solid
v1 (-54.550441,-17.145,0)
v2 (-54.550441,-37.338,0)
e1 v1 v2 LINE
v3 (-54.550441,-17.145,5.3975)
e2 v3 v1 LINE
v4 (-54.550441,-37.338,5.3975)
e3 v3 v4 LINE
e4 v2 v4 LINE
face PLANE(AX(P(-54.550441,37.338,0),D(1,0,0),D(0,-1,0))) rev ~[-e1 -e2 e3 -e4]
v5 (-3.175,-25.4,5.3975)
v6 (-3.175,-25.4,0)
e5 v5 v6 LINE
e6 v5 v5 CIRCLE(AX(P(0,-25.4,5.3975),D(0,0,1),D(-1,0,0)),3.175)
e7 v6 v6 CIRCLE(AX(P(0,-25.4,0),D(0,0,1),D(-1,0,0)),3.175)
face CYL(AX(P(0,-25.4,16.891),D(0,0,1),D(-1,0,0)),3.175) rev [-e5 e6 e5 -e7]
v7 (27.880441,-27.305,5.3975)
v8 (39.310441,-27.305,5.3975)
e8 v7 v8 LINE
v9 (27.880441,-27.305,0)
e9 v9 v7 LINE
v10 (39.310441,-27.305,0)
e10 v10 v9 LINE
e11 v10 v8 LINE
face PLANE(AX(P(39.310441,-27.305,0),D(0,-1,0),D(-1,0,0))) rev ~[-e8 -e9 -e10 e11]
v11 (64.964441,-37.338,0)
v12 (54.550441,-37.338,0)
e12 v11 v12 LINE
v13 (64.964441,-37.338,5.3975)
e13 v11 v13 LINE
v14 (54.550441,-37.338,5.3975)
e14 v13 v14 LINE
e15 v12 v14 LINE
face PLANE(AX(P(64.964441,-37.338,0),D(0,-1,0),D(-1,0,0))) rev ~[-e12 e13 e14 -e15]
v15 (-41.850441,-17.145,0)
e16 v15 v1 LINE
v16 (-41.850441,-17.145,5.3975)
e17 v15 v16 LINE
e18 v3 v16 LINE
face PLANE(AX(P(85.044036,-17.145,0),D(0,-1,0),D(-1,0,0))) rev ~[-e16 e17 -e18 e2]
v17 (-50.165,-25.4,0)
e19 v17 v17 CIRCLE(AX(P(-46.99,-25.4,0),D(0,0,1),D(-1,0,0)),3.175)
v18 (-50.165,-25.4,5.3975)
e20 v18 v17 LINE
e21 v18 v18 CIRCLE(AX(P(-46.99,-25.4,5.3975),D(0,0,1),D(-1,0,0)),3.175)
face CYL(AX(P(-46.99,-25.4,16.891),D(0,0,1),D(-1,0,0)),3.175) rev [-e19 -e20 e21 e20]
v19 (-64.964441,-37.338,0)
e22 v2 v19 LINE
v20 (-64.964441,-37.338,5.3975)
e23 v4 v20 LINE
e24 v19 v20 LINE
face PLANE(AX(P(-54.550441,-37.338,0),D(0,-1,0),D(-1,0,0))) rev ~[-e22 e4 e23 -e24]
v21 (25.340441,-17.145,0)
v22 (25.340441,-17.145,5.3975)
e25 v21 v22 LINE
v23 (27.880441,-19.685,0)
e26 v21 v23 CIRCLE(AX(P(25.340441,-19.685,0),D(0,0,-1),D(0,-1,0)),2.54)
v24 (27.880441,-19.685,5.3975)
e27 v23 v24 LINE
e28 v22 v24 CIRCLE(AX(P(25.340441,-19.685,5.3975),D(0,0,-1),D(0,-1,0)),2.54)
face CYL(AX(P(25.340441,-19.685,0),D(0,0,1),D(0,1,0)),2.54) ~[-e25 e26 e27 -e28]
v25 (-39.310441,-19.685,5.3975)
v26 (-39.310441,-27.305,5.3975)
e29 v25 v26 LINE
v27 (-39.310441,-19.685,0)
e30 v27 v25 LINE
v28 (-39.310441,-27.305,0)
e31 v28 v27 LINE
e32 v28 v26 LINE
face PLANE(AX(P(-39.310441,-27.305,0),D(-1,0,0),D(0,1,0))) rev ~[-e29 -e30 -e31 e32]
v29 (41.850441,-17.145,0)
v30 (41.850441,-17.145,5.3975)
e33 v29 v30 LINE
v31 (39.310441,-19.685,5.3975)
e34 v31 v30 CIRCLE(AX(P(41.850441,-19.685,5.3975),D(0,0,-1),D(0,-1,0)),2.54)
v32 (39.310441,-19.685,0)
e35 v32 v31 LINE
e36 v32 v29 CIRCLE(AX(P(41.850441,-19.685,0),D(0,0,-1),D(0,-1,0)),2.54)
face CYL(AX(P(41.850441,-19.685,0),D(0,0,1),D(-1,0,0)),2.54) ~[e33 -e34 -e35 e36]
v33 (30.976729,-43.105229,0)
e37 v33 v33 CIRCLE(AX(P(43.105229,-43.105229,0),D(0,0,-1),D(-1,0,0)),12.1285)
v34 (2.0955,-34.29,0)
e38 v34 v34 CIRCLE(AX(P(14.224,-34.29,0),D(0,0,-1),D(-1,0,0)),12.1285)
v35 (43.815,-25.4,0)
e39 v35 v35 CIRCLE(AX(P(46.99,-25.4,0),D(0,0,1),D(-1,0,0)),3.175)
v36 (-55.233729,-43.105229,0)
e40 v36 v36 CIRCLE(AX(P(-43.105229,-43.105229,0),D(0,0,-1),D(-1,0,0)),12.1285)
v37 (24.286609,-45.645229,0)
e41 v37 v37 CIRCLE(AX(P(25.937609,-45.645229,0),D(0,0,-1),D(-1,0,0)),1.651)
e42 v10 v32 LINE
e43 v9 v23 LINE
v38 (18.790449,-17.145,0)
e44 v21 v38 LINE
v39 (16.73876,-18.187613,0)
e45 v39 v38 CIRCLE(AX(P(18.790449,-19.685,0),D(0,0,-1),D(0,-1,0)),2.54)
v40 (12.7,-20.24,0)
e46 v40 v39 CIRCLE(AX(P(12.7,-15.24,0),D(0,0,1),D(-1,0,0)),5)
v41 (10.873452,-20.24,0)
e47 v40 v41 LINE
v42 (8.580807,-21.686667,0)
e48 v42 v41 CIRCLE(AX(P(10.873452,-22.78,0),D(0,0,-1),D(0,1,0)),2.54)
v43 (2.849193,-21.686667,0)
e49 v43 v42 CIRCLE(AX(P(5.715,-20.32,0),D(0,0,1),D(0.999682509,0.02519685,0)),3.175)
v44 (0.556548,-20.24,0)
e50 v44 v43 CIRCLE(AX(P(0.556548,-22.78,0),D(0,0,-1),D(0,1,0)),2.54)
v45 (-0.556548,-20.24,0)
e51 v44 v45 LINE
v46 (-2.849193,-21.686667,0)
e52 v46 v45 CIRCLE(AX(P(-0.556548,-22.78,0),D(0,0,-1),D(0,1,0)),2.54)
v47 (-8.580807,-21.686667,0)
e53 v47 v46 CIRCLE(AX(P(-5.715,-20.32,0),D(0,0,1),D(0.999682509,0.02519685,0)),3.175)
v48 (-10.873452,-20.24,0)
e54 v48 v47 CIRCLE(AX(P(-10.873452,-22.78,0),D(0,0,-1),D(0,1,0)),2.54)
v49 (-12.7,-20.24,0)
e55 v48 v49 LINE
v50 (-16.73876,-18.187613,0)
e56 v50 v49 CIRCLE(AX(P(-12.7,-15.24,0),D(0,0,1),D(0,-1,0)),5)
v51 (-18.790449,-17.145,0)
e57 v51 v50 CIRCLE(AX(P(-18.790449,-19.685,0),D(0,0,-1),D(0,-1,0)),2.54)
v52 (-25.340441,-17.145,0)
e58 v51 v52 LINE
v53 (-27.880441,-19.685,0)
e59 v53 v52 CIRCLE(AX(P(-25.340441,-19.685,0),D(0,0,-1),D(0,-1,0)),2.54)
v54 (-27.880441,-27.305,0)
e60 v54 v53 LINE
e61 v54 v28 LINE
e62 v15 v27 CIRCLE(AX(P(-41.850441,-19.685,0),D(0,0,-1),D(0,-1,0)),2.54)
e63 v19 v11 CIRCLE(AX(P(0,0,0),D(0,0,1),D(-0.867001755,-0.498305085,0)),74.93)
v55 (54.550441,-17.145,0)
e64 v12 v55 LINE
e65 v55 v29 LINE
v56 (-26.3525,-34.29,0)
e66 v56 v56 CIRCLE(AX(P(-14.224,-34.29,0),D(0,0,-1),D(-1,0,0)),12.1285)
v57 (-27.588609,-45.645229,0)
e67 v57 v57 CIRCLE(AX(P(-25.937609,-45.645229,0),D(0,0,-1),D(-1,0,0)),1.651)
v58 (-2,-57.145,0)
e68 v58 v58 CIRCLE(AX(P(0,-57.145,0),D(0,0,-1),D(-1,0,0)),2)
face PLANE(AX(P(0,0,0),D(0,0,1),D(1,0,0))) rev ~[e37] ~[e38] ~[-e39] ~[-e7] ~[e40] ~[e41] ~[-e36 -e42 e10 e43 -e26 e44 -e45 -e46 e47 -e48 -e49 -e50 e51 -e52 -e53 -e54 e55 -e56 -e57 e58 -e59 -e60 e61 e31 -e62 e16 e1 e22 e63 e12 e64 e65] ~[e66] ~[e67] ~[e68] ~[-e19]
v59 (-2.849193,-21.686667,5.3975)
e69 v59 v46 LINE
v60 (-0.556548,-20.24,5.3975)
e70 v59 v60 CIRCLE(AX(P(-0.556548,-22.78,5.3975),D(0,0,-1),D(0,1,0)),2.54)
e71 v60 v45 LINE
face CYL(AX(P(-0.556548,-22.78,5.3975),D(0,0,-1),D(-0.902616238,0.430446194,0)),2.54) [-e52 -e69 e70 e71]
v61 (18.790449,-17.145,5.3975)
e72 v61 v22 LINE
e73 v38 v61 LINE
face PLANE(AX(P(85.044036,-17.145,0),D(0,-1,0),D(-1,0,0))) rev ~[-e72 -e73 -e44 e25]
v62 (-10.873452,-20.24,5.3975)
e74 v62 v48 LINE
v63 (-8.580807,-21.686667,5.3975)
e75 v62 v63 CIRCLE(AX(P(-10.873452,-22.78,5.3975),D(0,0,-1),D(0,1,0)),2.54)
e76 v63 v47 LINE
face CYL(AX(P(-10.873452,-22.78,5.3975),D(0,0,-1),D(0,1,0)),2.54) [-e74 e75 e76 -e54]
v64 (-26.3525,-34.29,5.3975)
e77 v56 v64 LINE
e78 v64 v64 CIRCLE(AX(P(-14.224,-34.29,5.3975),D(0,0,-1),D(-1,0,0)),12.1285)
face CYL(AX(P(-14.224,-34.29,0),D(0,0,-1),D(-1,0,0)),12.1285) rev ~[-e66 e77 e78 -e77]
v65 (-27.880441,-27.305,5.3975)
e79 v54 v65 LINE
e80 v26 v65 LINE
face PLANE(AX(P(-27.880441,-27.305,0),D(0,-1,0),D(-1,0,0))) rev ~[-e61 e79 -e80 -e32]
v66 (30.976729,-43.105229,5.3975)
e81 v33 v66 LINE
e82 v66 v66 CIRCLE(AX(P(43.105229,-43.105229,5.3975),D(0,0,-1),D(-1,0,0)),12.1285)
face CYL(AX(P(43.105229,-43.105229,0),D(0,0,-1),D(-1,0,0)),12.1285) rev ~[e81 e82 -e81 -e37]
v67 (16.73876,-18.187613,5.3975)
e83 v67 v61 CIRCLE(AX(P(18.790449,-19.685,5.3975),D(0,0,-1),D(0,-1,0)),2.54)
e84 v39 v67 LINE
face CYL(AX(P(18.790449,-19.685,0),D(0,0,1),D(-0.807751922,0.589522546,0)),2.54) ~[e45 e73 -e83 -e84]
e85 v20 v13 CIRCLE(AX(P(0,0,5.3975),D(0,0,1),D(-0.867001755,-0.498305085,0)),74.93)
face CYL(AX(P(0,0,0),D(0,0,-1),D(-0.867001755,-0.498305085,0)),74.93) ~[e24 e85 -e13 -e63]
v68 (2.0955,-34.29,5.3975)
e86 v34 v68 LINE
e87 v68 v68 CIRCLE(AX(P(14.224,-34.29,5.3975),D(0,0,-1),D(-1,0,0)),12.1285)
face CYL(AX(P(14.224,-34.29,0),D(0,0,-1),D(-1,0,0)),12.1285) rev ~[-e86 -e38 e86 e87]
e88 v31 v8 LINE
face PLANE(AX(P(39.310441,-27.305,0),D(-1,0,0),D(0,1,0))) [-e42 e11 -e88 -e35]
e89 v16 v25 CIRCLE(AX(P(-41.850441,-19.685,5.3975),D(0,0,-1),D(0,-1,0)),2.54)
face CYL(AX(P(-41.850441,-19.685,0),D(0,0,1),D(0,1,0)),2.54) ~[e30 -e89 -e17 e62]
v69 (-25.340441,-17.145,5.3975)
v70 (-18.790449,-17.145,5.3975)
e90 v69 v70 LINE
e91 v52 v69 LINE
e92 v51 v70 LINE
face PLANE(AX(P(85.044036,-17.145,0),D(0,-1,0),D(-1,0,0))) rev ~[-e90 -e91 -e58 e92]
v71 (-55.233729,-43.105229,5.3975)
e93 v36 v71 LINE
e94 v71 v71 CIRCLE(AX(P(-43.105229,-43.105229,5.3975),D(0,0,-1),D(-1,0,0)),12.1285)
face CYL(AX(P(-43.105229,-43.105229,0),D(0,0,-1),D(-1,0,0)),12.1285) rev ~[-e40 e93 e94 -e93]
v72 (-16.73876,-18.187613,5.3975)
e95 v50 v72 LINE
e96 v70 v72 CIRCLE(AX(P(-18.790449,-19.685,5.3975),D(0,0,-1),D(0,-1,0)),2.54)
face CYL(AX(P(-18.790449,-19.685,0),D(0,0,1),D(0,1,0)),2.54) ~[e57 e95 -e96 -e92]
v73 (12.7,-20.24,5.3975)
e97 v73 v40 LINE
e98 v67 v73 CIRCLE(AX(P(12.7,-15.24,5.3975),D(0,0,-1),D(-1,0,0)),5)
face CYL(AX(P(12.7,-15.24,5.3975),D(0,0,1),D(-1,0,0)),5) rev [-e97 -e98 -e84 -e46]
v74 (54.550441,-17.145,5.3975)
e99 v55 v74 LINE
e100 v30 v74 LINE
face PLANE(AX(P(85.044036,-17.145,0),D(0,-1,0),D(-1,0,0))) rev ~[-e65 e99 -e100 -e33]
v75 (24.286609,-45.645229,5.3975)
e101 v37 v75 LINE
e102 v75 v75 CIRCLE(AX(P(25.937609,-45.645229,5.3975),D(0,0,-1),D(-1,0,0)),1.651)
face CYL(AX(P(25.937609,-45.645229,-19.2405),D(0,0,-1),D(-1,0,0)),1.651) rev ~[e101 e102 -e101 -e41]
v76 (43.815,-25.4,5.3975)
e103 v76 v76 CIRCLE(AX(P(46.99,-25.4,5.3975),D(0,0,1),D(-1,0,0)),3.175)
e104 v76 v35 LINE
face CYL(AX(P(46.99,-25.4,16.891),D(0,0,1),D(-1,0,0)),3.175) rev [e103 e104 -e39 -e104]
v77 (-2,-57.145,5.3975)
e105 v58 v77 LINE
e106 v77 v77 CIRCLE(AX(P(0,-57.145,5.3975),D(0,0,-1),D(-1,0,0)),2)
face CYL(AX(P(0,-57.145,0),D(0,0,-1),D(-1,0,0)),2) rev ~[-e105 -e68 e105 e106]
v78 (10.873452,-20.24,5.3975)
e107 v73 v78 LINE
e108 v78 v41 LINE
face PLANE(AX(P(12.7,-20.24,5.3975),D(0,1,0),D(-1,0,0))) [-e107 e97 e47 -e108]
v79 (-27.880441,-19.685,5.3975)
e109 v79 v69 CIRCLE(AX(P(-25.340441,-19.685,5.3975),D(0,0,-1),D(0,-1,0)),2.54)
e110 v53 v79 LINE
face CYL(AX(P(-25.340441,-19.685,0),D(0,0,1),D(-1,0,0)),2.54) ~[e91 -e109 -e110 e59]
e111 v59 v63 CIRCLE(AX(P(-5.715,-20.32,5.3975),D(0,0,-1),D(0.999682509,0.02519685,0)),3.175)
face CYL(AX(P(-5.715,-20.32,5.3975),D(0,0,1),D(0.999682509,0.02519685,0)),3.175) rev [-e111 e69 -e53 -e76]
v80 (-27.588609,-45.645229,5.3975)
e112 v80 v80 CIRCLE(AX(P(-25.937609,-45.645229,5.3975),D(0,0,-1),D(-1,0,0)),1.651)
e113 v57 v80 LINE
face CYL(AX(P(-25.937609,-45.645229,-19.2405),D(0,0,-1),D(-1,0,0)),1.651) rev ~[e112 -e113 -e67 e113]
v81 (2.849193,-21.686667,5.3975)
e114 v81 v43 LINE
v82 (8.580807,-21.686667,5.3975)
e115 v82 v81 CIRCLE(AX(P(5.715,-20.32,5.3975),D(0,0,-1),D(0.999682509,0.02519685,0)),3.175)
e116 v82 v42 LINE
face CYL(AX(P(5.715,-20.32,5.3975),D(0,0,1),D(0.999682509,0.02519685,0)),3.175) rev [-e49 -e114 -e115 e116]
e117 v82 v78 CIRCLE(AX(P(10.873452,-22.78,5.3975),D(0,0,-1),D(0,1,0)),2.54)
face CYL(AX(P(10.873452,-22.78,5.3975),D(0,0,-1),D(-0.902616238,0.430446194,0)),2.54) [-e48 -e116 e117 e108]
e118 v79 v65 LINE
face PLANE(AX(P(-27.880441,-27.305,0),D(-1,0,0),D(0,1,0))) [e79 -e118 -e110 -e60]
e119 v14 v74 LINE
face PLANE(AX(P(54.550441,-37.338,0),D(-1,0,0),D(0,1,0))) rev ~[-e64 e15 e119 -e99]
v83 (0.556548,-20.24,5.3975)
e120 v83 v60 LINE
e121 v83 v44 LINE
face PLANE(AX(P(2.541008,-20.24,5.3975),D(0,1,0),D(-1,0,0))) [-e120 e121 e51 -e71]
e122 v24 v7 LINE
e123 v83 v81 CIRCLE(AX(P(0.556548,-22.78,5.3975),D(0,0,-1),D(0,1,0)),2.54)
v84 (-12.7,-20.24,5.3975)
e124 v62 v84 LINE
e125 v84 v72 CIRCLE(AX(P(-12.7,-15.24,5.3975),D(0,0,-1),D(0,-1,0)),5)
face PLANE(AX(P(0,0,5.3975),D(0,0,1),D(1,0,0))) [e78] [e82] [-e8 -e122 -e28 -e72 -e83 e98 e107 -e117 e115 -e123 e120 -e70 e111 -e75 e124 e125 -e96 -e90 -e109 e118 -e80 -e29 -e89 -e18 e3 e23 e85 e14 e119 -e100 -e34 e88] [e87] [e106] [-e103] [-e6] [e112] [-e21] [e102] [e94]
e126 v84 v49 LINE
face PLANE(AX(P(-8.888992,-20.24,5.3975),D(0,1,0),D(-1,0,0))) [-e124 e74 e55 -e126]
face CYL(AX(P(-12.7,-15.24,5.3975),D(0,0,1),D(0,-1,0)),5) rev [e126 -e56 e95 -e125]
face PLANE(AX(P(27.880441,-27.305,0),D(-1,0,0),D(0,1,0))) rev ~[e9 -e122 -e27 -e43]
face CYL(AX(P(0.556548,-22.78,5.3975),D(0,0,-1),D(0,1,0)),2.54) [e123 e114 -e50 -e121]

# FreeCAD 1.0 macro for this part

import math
import FreeCAD as App
import Part
import Sketcher
from FreeCAD import Vector
Q = App.Units.Quantity


def edges_at(feature, points):
    """Names of the edges that pass closest to the given points."""
    edges = feature.Shape.Edges
    near = lambda p: min(range(len(edges)), key=lambda i: edges[i].distToShape(Part.Vertex(*p))[0])
    return sorted({f"Edge{near(p) + 1}" for p in points})

doc = App.newDocument("Part")
params = doc.addObject("Spreadsheet::Sheet", "Params")
for row, (alias, value) in enumerate([
    ("sketch1_diameter", "0.13 in"),
    ("sketch1_radius", "2.95 in"),
    ("sketch1_width", "0.41 in"),
    ("sketch1_height", "2.94 in"),
    ("pad1_length", "0.2125 in"),
    ("sketch2_diameter", "0.09 in"),
    ("sketch3_diameter", "0.955 in"),
    ("pad2_length", "0.2125 in"),
    ("pocket4_length", "0.92 in"),
    ("sketch7_height", "0.4 in"),
    ("sketch7_width", "0.45 in"),
    ("sketch8_diameter", "0.13 in"),
    ("pocket6_length", "3.85 in"),
    ("sketch9_diameter", "0.25 in"),
    ("sketch10_radius", "0.125 in"),
    ("pocket8_length", "10 mm"),
    ("fillet_radius", "0.1 in"),
], start=1):
    params.set(f"A{row}", alias)
    params.set(f"B{row}", "=" + value)
    params.setAlias(f"B{row}", alias)

body = doc.addObject("PartDesign::Body", "Body")

# Sketch on XY plane
sketch1 = doc.addObject("Sketcher::SketchObject", "Sketch")
body.addObject(sketch1)
sketch1.AttachmentSupport = (doc.XY_Plane, [""])
sketch1.MapMode = "FlatFace"
sketch1.addGeometry(Part.LineSegment(Vector(-65, 37.3, 0), Vector(-54.6, 37.3, 0)), False)
sketch1.addGeometry(Part.LineSegment(Vector(-54.6, 37.3, 0), Vector(-54.6, -37.3, 0)), False)
sketch1.addGeometry(Part.LineSegment(Vector(-54.6, -37.3, 0), Vector(-65, -37.3, 0)), False)
sketch1.addGeometry(Part.ArcOfCircle(Part.Circle(Vector(0, 0, 0), Vector(0, 0, 1), 74.9), math.radians(-150), math.radians(-30)), False)
sketch1.addGeometry(Part.LineSegment(Vector(65, -37.3, 0), Vector(54.6, -37.3, 0)), False)
sketch1.addGeometry(Part.LineSegment(Vector(54.6, -37.3, 0), Vector(54.6, 37.3, 0)), False)
sketch1.addGeometry(Part.LineSegment(Vector(54.6, 37.3, 0), Vector(65, 37.3, 0)), False)
sketch1.addGeometry(Part.ArcOfCircle(Part.Circle(Vector(0, 0, 0), Vector(0, 0, 1), 74.9), math.radians(30), math.radians(150)), False)
sketch1.addGeometry(Part.Circle(Vector(-46.5, -11, 0), Vector(0, 0, 1), 1.7), False)
sketch1.addGeometry(Part.Circle(Vector(-21.1, -10.8, 0), Vector(0, 0, 1), 1.7), False)
sketch1.addGeometry(Part.Circle(Vector(21.1, -10.8, 0), Vector(0, 0, 1), 1.7), False)
sketch1.addGeometry(Part.Circle(Vector(46.5, -11, 0), Vector(0, 0, 1), 1.7), False)
sketch1.addGeometry(Part.Circle(Vector(-46.5, 11, 0), Vector(0, 0, 1), 1.7), False)
sketch1.addGeometry(Part.Circle(Vector(-21.1, 10.8, 0), Vector(0, 0, 1), 1.7), False)
sketch1.addGeometry(Part.Circle(Vector(21.1, 10.8, 0), Vector(0, 0, 1), 1.7), False)
sketch1.addGeometry(Part.Circle(Vector(46.5, 11, 0), Vector(0, 0, 1), 1.7), False)
sketch1.addConstraint(Sketcher.Constraint("Coincident", 0, 2, 1, 1))
sketch1.addConstraint(Sketcher.Constraint("Coincident", 1, 2, 2, 1))
sketch1.addConstraint(Sketcher.Constraint("Coincident", 2, 2, 3, 1))
sketch1.addConstraint(Sketcher.Constraint("Coincident", 3, 2, 4, 1))
sketch1.addConstraint(Sketcher.Constraint("Coincident", 4, 2, 5, 1))
sketch1.addConstraint(Sketcher.Constraint("Coincident", 5, 2, 6, 1))
sketch1.addConstraint(Sketcher.Constraint("Coincident", 6, 2, 7, 1))
sketch1.addConstraint(Sketcher.Constraint("Coincident", 7, 2, 0, 1))
sketch1.addConstraint(Sketcher.Constraint("Horizontal", 0))
sketch1.addConstraint(Sketcher.Constraint("Vertical", 1))
sketch1.addConstraint(Sketcher.Constraint("Horizontal", 2))
sketch1.addConstraint(Sketcher.Constraint("Horizontal", 4))
sketch1.addConstraint(Sketcher.Constraint("Vertical", 5))
sketch1.addConstraint(Sketcher.Constraint("Horizontal", 6))
sketch1.addConstraint(Sketcher.Constraint("Coincident", 3, 3, -1, 1))
sketch1.addConstraint(Sketcher.Constraint("Coincident", 7, 3, -1, 1))
sketch1.addConstraint(Sketcher.Constraint("Equal", 3, 7))
sketch1.addConstraint(Sketcher.Constraint("Equal", 8, 9))
sketch1.addConstraint(Sketcher.Constraint("Equal", 9, 10))
sketch1.addConstraint(Sketcher.Constraint("Equal", 10, 11))
sketch1.addConstraint(Sketcher.Constraint("Equal", 11, 12))
sketch1.addConstraint(Sketcher.Constraint("Equal", 12, 13))
sketch1.addConstraint(Sketcher.Constraint("Equal", 13, 14))
sketch1.addConstraint(Sketcher.Constraint("Equal", 14, 15))
sketch1.addConstraint(Sketcher.Constraint("Symmetric", 11, 3, 12, 3, -1, 1))
sketch1.addConstraint(Sketcher.Constraint("Symmetric", 10, 3, 13, 3, -1, 1))
sketch1.addConstraint(Sketcher.Constraint("Symmetric", 9, 3, 14, 3, -1, 1))
sketch1.addConstraint(Sketcher.Constraint("Symmetric", 8, 3, 15, 3, -1, 1))
sketch1.addConstraint(Sketcher.Constraint("Symmetric", 0, 2, 4, 2, -1, 1))
sketch1.addConstraint(Sketcher.Constraint("Symmetric", 9, 3, 10, 3, -2))
sketch1.addConstraint(Sketcher.Constraint("Symmetric", 8, 3, 11, 3, -2))
sketch1.addConstraint(Sketcher.Constraint("Horizontal", 2, 2, 3, 2))
sketch1.addConstraint(Sketcher.Constraint("Horizontal", 0, 2, 5, 2))
sketch1.addConstraint(Sketcher.Constraint("Diameter", 8, Q("0.13 in")))
sketch1.addConstraint(Sketcher.Constraint("Radius", 3, Q("2.95 in")))
sketch1.addConstraint(Sketcher.Constraint("DistanceX", 0, 1, 0, 2, Q("0.41 in")))
sketch1.addConstraint(Sketcher.Constraint("DistanceY", 1, 2, 1, 1, Q("2.94 in")))
sketch1.addConstraint(Sketcher.Constraint("DistanceX", 8, 3, -1, 1, Q("1.83 in")))
sketch1.addConstraint(Sketcher.Constraint("DistanceY", 8, 3, 9, 3, Q("0.01 in")))
sketch1.addConstraint(Sketcher.Constraint("DistanceY", 8, 3, 12, 3, Q("0.87 in")))
sketch1.addConstraint(Sketcher.Constraint("DistanceX", 9, 3, 10, 3, Q("1.6601 in")))
sketch1.setExpression("Constraints[33]", "Params.sketch1_diameter")
sketch1.setExpression("Constraints[34]", "Params.sketch1_radius")
sketch1.setExpression("Constraints[35]", "Params.sketch1_width")
sketch1.setExpression("Constraints[36]", "Params.sketch1_height")
pad1 = doc.addObject("PartDesign::Pad", "Pad")
body.addObject(pad1)
pad1.Profile = sketch1
pad1.setExpression("Length", "Params.pad1_length")

# Sketch on XY plane
sketch2 = doc.addObject("Sketcher::SketchObject", "Sketch001")
body.addObject(sketch2)
sketch2.AttachmentSupport = (doc.XY_Plane, [""])
sketch2.MapMode = "FlatFace"
sketch2.AttachmentOffset = App.Placement(Vector(0, 0, 0.2125 * 25.4), App.Rotation())
sketch2.addGeometry(Part.Circle(Vector(-6.7, 62.2, 0), Vector(0, 0, 1), 1.1), False)
sketch2.addGeometry(Part.Circle(Vector(6.7, 62.2, 0), Vector(0, 0, 1), 1.1), False)
sketch2.addConstraint(Sketcher.Constraint("Equal", 0, 1))
sketch2.addConstraint(Sketcher.Constraint("Symmetric", 0, 3, 1, 3, -2))
sketch2.addConstraint(Sketcher.Constraint("Diameter", 0, Q("0.09 in")))
sketch2.addConstraint(Sketcher.Constraint("DistanceY", -1, 1, 0, 3, Q("2.45 in")))
sketch2.addConstraint(Sketcher.Constraint("DistanceX", 0, 3, 1, 3, Q("0.53 in")))
sketch2.setExpression("Constraints[2]", "Params.sketch2_diameter")
pocket1 = doc.addObject("PartDesign::Pocket", "Pocket")
body.addObject(pocket1)
pocket1.Profile = sketch2
pocket1.Type = "ThroughAll"

# Sketch on XY plane
sketch3 = doc.addObject("Sketcher::SketchObject", "Sketch002")
body.addObject(sketch3)
sketch3.AttachmentSupport = (doc.XY_Plane, [""])
sketch3.MapMode = "FlatFace"
sketch3.addGeometry(Part.Circle(Vector(43, -43, 0), Vector(0, 0, 1), 12), False)
sketch3.addGeometry(Part.Circle(Vector(-14, -34, 0), Vector(0, 0, 1), 12), False)
sketch3.addGeometry(Part.Circle(Vector(-14, 34, 0), Vector(0, 0, 1), 12), False)
sketch3.addGeometry(Part.Circle(Vector(43, 43, 0), Vector(0, 0, 1), 12), False)
sketch3.addGeometry(Part.Circle(Vector(-43, 43, 0), Vector(0, 0, 1), 12), False)
sketch3.addGeometry(Part.Circle(Vector(14, 34, 0), Vector(0, 0, 1), 12), False)
sketch3.addGeometry(Part.Circle(Vector(14, -34, 0), Vector(0, 0, 1), 12), False)
sketch3.addGeometry(Part.Circle(Vector(-43, -43, 0), Vector(0, 0, 1), 12), False)
sketch3.addConstraint(Sketcher.Constraint("Equal", 0, 1))
sketch3.addConstraint(Sketcher.Constraint("Equal", 1, 2))
sketch3.addConstraint(Sketcher.Constraint("Equal", 2, 3))
sketch3.addConstraint(Sketcher.Constraint("Equal", 3, 4))
sketch3.addConstraint(Sketcher.Constraint("Equal", 4, 5))
sketch3.addConstraint(Sketcher.Constraint("Equal", 5, 6))
sketch3.addConstraint(Sketcher.Constraint("Equal", 6, 7))
sketch3.addConstraint(Sketcher.Constraint("Symmetric", 0, 3, 4, 3, -1, 1))
sketch3.addConstraint(Sketcher.Constraint("Symmetric", 1, 3, 5, 3, -1, 1))
sketch3.addConstraint(Sketcher.Constraint("Symmetric", 2, 3, 6, 3, -1, 1))
sketch3.addConstraint(Sketcher.Constraint("Symmetric", 3, 3, 7, 3, -1, 1))
sketch3.addConstraint(Sketcher.Constraint("Symmetric", 3, 3, 4, 3, -2))
sketch3.addConstraint(Sketcher.Constraint("Symmetric", 2, 3, 5, 3, -2))
sketch3.addConstraint(Sketcher.Constraint("Diameter", 0, Q("0.955 in")))
sketch3.addConstraint(Sketcher.Constraint("DistanceY", 1, 3, 2, 3, Q("2.7 in")))
sketch3.addConstraint(Sketcher.Constraint("DistanceX", 1, 3, -1, 1, Q("0.56 in")))
sketch3.addConstraint(Sketcher.Constraint("DistanceX", -1, 1, 0, 3, Q("43.105229 mm")))
sketch3.addConstraint(Sketcher.Constraint("DistanceY", 0, 3, -1, 1, Q("43.105229 mm")))
sketch3.setExpression("Constraints[13]", "Params.sketch3_diameter")
pocket2 = doc.addObject("PartDesign::Pocket", "Pocket001")
body.addObject(pocket2)
pocket2.Profile = sketch3
pocket2.Type = "ThroughAll"
pocket2.Reversed = True

# Sketch on XY plane
sketch4 = doc.addObject("Sketcher::SketchObject", "Sketch003")
body.addObject(sketch4)
sketch4.AttachmentSupport = (doc.XY_Plane, [""])
sketch4.MapMode = "FlatFace"
sketch4.addGeometry(Part.LineSegment(Vector(16, 68, 0), Vector(16, 56, 0)), False)
sketch4.addGeometry(Part.LineSegment(Vector(16, 56, 0), Vector(-13, 56, 0)), False)
sketch4.addGeometry(Part.LineSegment(Vector(-13, 56, 0), Vector(-13, 68, 0)), False)
sketch4.addGeometry(Part.LineSegment(Vector(-13, 68, 0), Vector(16, 68, 0)), False)
sketch4.addConstraint(Sketcher.Constraint("Coincident", 0, 2, 1, 1))
sketch4.addConstraint(Sketcher.Constraint("Coincident", 1, 2, 2, 1))
sketch4.addConstraint(Sketcher.Constraint("Coincident", 2, 2, 3, 1))
sketch4.addConstraint(Sketcher.Constraint("Coincident", 3, 2, 0, 1))
sketch4.addConstraint(Sketcher.Constraint("Vertical", 0))
sketch4.addConstraint(Sketcher.Constraint("Horizontal", 1))
sketch4.addConstraint(Sketcher.Constraint("Vertical", 2))
sketch4.addConstraint(Sketcher.Constraint("Horizontal", 3))
sketch4.addConstraint(Sketcher.Constraint("DistanceX", 1, 2, 1, 1, Q("28.562713 mm")))
sketch4.addConstraint(Sketcher.Constraint("DistanceY", 0, 2, 0, 1, Q("11.677504 mm")))
sketch4.addConstraint(Sketcher.Constraint("DistanceY", -1, 1, 0, 2, Q("56.313788 mm")))
sketch4.addConstraint(Sketcher.Constraint("DistanceX", -1, 1, 0, 2, Q("15.770167 mm")))
pad2 = doc.addObject("PartDesign::Pad", "Pad001")
body.addObject(pad2)
pad2.Profile = sketch4
pad2.setExpression("Length", "Params.pad2_length")

# Sketch on XY plane
sketch5 = doc.addObject("Sketcher::SketchObject", "Sketch004")
body.addObject(sketch5)
sketch5.AttachmentSupport = (doc.XY_Plane, [""])
sketch5.MapMode = "FlatFace"
sketch5.addGeometry(Part.LineSegment(Vector(85, 113, 0), Vector(85, -17, 0)), False)
sketch5.addGeometry(Part.LineSegment(Vector(85, -17, 0), Vector(-132, -17, 0)), False)
sketch5.addGeometry(Part.LineSegment(Vector(-132, -17, 0), Vector(-132, 113, 0)), False)
sketch5.addGeometry(Part.LineSegment(Vector(-132, 113, 0), Vector(85, 113, 0)), False)
sketch5.addConstraint(Sketcher.Constraint("Coincident", 0, 2, 1, 1))
sketch5.addConstraint(Sketcher.Constraint("Coincident", 1, 2, 2, 1))
sketch5.addConstraint(Sketcher.Constraint("Coincident", 2, 2, 3, 1))
sketch5.addConstraint(Sketcher.Constraint("Coincident", 3, 2, 0, 1))
sketch5.addConstraint(Sketcher.Constraint("Vertical", 0))
sketch5.addConstraint(Sketcher.Constraint("Horizontal", 1))
sketch5.addConstraint(Sketcher.Constraint("Vertical", 2))
sketch5.addConstraint(Sketcher.Constraint("Horizontal", 3))
sketch5.addConstraint(Sketcher.Constraint("DistanceY", 0, 2, -1, 1, Q("0.675 in")))
sketch5.addConstraint(Sketcher.Constraint("DistanceX", 1, 2, 1, 1, Q("216.721449 mm")))
sketch5.addConstraint(Sketcher.Constraint("DistanceY", 0, 2, 0, 1, Q("130.569221 mm")))
sketch5.addConstraint(Sketcher.Constraint("DistanceX", -1, 1, 0, 2, Q("85.044036 mm")))
pocket3 = doc.addObject("PartDesign::Pocket", "Pocket002")
body.addObject(pocket3)
pocket3.Profile = sketch5
pocket3.Type = "ThroughAll"
pocket3.Reversed = True

# Sketch on XY plane
sketch6 = doc.addObject("Sketcher::SketchObject", "Sketch005")
body.addObject(sketch6)
sketch6.AttachmentSupport = (doc.XY_Plane, [""])
sketch6.MapMode = "FlatFace"
sketch6.addGeometry(Part.Circle(Vector(0, -57.1, 0), Vector(0, 0, 1), 2), False)
sketch6.addConstraint(Sketcher.Constraint("PointOnObject", 0, 3, -2))
sketch6.addConstraint(Sketcher.Constraint("Diameter", 0, Q("4 mm")))
sketch6.addConstraint(Sketcher.Constraint("DistanceY", 0, 3, -1, 1, Q("57.145 mm")))
pocket4 = doc.addObject("PartDesign::Pocket", "Pocket003")
body.addObject(pocket4)
pocket4.Profile = sketch6
pocket4.setExpression("Length", "Params.pocket4_length")
pocket4.Reversed = True

# Sketch on XY plane
sketch7 = doc.addObject("Sketcher::SketchObject", "Sketch006")
body.addObject(sketch7)
sketch7.AttachmentSupport = (doc.XY_Plane, [""])
sketch7.MapMode = "FlatFace"
sketch7.addGeometry(Part.LineSegment(Vector(39, -17, 0), Vector(39, -27, 0)), False)
sketch7.addGeometry(Part.LineSegment(Vector(39, -27, 0), Vector(28, -27, 0)), False)
sketch7.addGeometry(Part.LineSegment(Vector(28, -27, 0), Vector(28, -17, 0)), False)
sketch7.addGeometry(Part.LineSegment(Vector(28, -17, 0), Vector(39, -17, 0)), False)
sketch7.addGeometry(Part.LineSegment(Vector(-28, -17, 0), Vector(-28, -27, 0)), False)
sketch7.addGeometry(Part.LineSegment(Vector(-28, -27, 0), Vector(-39, -27, 0)), False)
sketch7.addGeometry(Part.LineSegment(Vector(-39, -27, 0), Vector(-39, -17, 0)), False)
sketch7.addGeometry(Part.LineSegment(Vector(-39, -17, 0), Vector(-28, -17, 0)), False)
sketch7.addConstraint(Sketcher.Constraint("Coincident", 0, 2, 1, 1))
sketch7.addConstraint(Sketcher.Constraint("Coincident", 1, 2, 2, 1))
sketch7.addConstraint(Sketcher.Constraint("Coincident", 2, 2, 3, 1))
sketch7.addConstraint(Sketcher.Constraint("Coincident", 3, 2, 0, 1))
sketch7.addConstraint(Sketcher.Constraint("Coincident", 4, 2, 5, 1))
sketch7.addConstraint(Sketcher.Constraint("Coincident", 5, 2, 6, 1))
sketch7.addConstraint(Sketcher.Constraint("Coincident", 6, 2, 7, 1))
sketch7.addConstraint(Sketcher.Constraint("Coincident", 7, 2, 4, 1))
sketch7.addConstraint(Sketcher.Constraint("Vertical", 0))
sketch7.addConstraint(Sketcher.Constraint("Horizontal", 1))
sketch7.addConstraint(Sketcher.Constraint("Vertical", 2))
sketch7.addConstraint(Sketcher.Constraint("Horizontal", 3))
sketch7.addConstraint(Sketcher.Constraint("Vertical", 4))
sketch7.addConstraint(Sketcher.Constraint("Horizontal", 5))
sketch7.addConstraint(Sketcher.Constraint("Vertical", 6))
sketch7.addConstraint(Sketcher.Constraint("Horizontal", 7))
sketch7.addConstraint(Sketcher.Constraint("Symmetric", 1, 2, 4, 2, -2))
sketch7.addConstraint(Sketcher.Constraint("Symmetric", 3, 2, 6, 2, -2))
sketch7.addConstraint(Sketcher.Constraint("DistanceY", 0, 2, 0, 1, Q("0.4 in")))
sketch7.addConstraint(Sketcher.Constraint("DistanceX", 1, 2, 1, 1, Q("0.45 in")))
sketch7.addConstraint(Sketcher.Constraint("DistanceY", 0, 2, -1, 1, Q("1.075 in")))
sketch7.addConstraint(Sketcher.Constraint("DistanceX", -1, 1, 0, 2, Q("39.310441 mm")))
sketch7.setExpression("Constraints[18]", "Params.sketch7_height")
sketch7.setExpression("Constraints[19]", "Params.sketch7_width")
pocket5 = doc.addObject("PartDesign::Pocket", "Pocket004")
body.addObject(pocket5)
pocket5.Profile = sketch7
pocket5.Type = "ThroughAll"
pocket5.Reversed = True

# Sketch on XY plane
sketch8 = doc.addObject("Sketcher::SketchObject", "Sketch007")
body.addObject(sketch8)
sketch8.AttachmentSupport = (doc.XY_Plane, [""])
sketch8.MapMode = "FlatFace"
sketch8.AttachmentOffset = App.Placement(Vector(0, 0, -0.7575 * 25.4), App.Rotation())
sketch8.addGeometry(Part.Circle(Vector(25.9, -45.6, 0), Vector(0, 0, 1), 1.7), False)
sketch8.addGeometry(Part.Circle(Vector(-25.9, -45.6, 0), Vector(0, 0, 1), 1.7), False)
sketch8.addConstraint(Sketcher.Constraint("Equal", 0, 1))
sketch8.addConstraint(Sketcher.Constraint("Symmetric", 0, 3, 1, 3, -2))
sketch8.addConstraint(Sketcher.Constraint("Diameter", 0, Q("0.13 in")))
sketch8.addConstraint(Sketcher.Constraint("DistanceX", -1, 1, 0, 3, Q("25.937609 mm")))
sketch8.addConstraint(Sketcher.Constraint("DistanceY", 0, 3, -1, 1, Q("45.645229 mm")))
sketch8.setExpression("Constraints[2]", "Params.sketch8_diameter")
pocket6 = doc.addObject("PartDesign::Pocket", "Pocket005")
body.addObject(pocket6)
pocket6.Profile = sketch8
pocket6.setExpression("Length", "Params.pocket6_length")
pocket6.Reversed = True

# Sketch on XY plane
sketch9 = doc.addObject("Sketcher::SketchObject", "Sketch008")
body.addObject(sketch9)
sketch9.AttachmentSupport = (doc.XY_Plane, [""])
sketch9.MapMode = "FlatFace"
sketch9.AttachmentOffset = App.Placement(Vector(0, 0, 0.665 * 25.4), App.Rotation())
sketch9.addGeometry(Part.Circle(Vector(-47, -25.4, 0), Vector(0, 0, 1), 3.2), False)
sketch9.addGeometry(Part.Circle(Vector(0, -25.4, 0), Vector(0, 0, 1), 3.2), False)
sketch9.addGeometry(Part.Circle(Vector(47, -25.4, 0), Vector(0, 0, 1), 3.2), False)
sketch9.addConstraint(Sketcher.Constraint("Equal", 0, 1))
sketch9.addConstraint(Sketcher.Constraint("Equal", 1, 2))
sketch9.addConstraint(Sketcher.Constraint("Symmetric", 0, 3, 2, 3, -2))
sketch9.addConstraint(Sketcher.Constraint("PointOnObject", 1, 3, -2))
sketch9.addConstraint(Sketcher.Constraint("Horizontal", 0, 3, 1, 3))
sketch9.addConstraint(Sketcher.Constraint("Diameter", 0, Q("0.25 in")))
sketch9.addConstraint(Sketcher.Constraint("DistanceY", 0, 3, -1, 1, Q("1 in")))
sketch9.addConstraint(Sketcher.Constraint("DistanceX", 0, 3, 2, 3, Q("3.7 in")))
sketch9.setExpression("Constraints[5]", "Params.sketch9_diameter")
pocket7 = doc.addObject("PartDesign::Pocket", "Pocket006")
body.addObject(pocket7)
pocket7.Profile = sketch9
pocket7.Type = "ThroughAll"
pocket7.Midplane = True

# Sketch on XY plane
sketch10 = doc.addObject("Sketcher::SketchObject", "Sketch009")
body.addObject(sketch10)
sketch10.AttachmentSupport = (doc.XY_Plane, [""])
sketch10.MapMode = "FlatFace"
sketch10.AttachmentOffset = App.Placement(Vector(0, 0, 0.2125 * 25.4), App.Rotation())
sketch10.addGeometry(Part.LineSegment(Vector(8.9, -20.2, 0), Vector(12.7, -20.2, 0)), False)
sketch10.addGeometry(Part.ArcOfCircle(Part.Circle(Vector(12.7, -15.2, 0), Vector(0, 0, 1), 5), math.radians(-90), math.radians(180)), False)
sketch10.addGeometry(Part.LineSegment(Vector(7.7, -15.2, 0), Vector(-7.7, -15.2, 0)), False)
sketch10.addGeometry(Part.ArcOfCircle(Part.Circle(Vector(-12.7, -15.2, 0), Vector(0, 0, 1), 5), math.radians(0), math.radians(270)), False)
sketch10.addGeometry(Part.LineSegment(Vector(-12.7, -20.2, 0), Vector(-8.9, -20.2, 0)), False)
sketch10.addGeometry(Part.ArcOfCircle(Part.Circle(Vector(-5.7, -20.3, 0), Vector(0, 0, 1), 3.2), math.radians(179), math.radians(361)), False)
sketch10.addGeometry(Part.LineSegment(Vector(-2.5, -20.2, 0), Vector(2.5, -20.2, 0)), False)
sketch10.addGeometry(Part.ArcOfCircle(Part.Circle(Vector(5.7, -20.3, 0), Vector(0, 0, 1), 3.2), math.radians(179), math.radians(361)), False)
sketch10.addConstraint(Sketcher.Constraint("Tangent", 0, 2, 1, 1))
sketch10.addConstraint(Sketcher.Constraint("Coincident", 1, 2, 2, 1))
sketch10.addConstraint(Sketcher.Constraint("Coincident", 2, 2, 3, 1))
sketch10.addConstraint(Sketcher.Constraint("Tangent", 3, 2, 4, 1))
sketch10.addConstraint(Sketcher.Constraint("Coincident", 4, 2, 5, 1))
sketch10.addConstraint(Sketcher.Constraint("Coincident", 5, 2, 6, 1))
sketch10.addConstraint(Sketcher.Constraint("Coincident", 6, 2, 7, 1))
sketch10.addConstraint(Sketcher.Constraint("Coincident", 7, 2, 0, 1))
sketch10.addConstraint(Sketcher.Constraint("Horizontal", 0))
sketch10.addConstraint(Sketcher.Constraint("Horizontal", 2))
sketch10.addConstraint(Sketcher.Constraint("Horizontal", 4))
sketch10.addConstraint(Sketcher.Constraint("Horizontal", 6))
sketch10.addConstraint(Sketcher.Constraint("Equal", 1, 3))
sketch10.addConstraint(Sketcher.Constraint("Equal", 5, 7))
sketch10.addConstraint(Sketcher.Constraint("Symmetric", 1, 3, 3, 3, -2))
sketch10.addConstraint(Sketcher.Constraint("Symmetric", 5, 3, 7, 3, -2))
sketch10.addConstraint(Sketcher.Constraint("Horizontal", 3, 3, 1, 2))
sketch10.addConstraint(Sketcher.Constraint("Horizontal", 4, 2, 5, 2))
sketch10.addConstraint(Sketcher.Constraint("Radius", 5, Q("0.125 in")))
sketch10.addConstraint(Sketcher.Constraint("DistanceX", 3, 3, 1, 3, Q("1 in")))
sketch10.addConstraint(Sketcher.Constraint("DistanceY", 1, 3, -1, 1, Q("0.6 in")))
sketch10.addConstraint(Sketcher.Constraint("DistanceY", 5, 3, -1, 1, Q("0.8 in")))
sketch10.addConstraint(Sketcher.Constraint("Radius", 1, Q("5 mm")))
sketch10.addConstraint(Sketcher.Constraint("DistanceX", 5, 3, 7, 3, Q("0.45 in")))
sketch10.setExpression("Constraints[18]", "Params.sketch10_radius")
pocket8 = doc.addObject("PartDesign::Pocket", "Pocket007")
body.addObject(pocket8)
pocket8.Profile = sketch10
pocket8.setExpression("Length", "Params.pocket8_length")
doc.recompute()

fillet = doc.addObject("PartDesign::Fillet", "Fillet")
body.addObject(fillet)
fillet.Base = (pocket8, edges_at(pocket8, [
    (39.31, -17.145, 2.699),
    (27.88, -17.145, 2.699),
    (-27.88, -17.145, 2.699),
    (-39.31, -17.145, 2.699),
    (-2.541, -20.24, 2.699),
    (-8.889, -20.24, 2.699),
    (-17.323, -17.145, 2.699),
    (17.323, -17.145, 2.699),
    (8.889, -20.24, 2.699),
    (2.541, -20.24, 2.699),
]))
fillet.setExpression("Radius", "Params.fillet_radius")

doc.recompute()
